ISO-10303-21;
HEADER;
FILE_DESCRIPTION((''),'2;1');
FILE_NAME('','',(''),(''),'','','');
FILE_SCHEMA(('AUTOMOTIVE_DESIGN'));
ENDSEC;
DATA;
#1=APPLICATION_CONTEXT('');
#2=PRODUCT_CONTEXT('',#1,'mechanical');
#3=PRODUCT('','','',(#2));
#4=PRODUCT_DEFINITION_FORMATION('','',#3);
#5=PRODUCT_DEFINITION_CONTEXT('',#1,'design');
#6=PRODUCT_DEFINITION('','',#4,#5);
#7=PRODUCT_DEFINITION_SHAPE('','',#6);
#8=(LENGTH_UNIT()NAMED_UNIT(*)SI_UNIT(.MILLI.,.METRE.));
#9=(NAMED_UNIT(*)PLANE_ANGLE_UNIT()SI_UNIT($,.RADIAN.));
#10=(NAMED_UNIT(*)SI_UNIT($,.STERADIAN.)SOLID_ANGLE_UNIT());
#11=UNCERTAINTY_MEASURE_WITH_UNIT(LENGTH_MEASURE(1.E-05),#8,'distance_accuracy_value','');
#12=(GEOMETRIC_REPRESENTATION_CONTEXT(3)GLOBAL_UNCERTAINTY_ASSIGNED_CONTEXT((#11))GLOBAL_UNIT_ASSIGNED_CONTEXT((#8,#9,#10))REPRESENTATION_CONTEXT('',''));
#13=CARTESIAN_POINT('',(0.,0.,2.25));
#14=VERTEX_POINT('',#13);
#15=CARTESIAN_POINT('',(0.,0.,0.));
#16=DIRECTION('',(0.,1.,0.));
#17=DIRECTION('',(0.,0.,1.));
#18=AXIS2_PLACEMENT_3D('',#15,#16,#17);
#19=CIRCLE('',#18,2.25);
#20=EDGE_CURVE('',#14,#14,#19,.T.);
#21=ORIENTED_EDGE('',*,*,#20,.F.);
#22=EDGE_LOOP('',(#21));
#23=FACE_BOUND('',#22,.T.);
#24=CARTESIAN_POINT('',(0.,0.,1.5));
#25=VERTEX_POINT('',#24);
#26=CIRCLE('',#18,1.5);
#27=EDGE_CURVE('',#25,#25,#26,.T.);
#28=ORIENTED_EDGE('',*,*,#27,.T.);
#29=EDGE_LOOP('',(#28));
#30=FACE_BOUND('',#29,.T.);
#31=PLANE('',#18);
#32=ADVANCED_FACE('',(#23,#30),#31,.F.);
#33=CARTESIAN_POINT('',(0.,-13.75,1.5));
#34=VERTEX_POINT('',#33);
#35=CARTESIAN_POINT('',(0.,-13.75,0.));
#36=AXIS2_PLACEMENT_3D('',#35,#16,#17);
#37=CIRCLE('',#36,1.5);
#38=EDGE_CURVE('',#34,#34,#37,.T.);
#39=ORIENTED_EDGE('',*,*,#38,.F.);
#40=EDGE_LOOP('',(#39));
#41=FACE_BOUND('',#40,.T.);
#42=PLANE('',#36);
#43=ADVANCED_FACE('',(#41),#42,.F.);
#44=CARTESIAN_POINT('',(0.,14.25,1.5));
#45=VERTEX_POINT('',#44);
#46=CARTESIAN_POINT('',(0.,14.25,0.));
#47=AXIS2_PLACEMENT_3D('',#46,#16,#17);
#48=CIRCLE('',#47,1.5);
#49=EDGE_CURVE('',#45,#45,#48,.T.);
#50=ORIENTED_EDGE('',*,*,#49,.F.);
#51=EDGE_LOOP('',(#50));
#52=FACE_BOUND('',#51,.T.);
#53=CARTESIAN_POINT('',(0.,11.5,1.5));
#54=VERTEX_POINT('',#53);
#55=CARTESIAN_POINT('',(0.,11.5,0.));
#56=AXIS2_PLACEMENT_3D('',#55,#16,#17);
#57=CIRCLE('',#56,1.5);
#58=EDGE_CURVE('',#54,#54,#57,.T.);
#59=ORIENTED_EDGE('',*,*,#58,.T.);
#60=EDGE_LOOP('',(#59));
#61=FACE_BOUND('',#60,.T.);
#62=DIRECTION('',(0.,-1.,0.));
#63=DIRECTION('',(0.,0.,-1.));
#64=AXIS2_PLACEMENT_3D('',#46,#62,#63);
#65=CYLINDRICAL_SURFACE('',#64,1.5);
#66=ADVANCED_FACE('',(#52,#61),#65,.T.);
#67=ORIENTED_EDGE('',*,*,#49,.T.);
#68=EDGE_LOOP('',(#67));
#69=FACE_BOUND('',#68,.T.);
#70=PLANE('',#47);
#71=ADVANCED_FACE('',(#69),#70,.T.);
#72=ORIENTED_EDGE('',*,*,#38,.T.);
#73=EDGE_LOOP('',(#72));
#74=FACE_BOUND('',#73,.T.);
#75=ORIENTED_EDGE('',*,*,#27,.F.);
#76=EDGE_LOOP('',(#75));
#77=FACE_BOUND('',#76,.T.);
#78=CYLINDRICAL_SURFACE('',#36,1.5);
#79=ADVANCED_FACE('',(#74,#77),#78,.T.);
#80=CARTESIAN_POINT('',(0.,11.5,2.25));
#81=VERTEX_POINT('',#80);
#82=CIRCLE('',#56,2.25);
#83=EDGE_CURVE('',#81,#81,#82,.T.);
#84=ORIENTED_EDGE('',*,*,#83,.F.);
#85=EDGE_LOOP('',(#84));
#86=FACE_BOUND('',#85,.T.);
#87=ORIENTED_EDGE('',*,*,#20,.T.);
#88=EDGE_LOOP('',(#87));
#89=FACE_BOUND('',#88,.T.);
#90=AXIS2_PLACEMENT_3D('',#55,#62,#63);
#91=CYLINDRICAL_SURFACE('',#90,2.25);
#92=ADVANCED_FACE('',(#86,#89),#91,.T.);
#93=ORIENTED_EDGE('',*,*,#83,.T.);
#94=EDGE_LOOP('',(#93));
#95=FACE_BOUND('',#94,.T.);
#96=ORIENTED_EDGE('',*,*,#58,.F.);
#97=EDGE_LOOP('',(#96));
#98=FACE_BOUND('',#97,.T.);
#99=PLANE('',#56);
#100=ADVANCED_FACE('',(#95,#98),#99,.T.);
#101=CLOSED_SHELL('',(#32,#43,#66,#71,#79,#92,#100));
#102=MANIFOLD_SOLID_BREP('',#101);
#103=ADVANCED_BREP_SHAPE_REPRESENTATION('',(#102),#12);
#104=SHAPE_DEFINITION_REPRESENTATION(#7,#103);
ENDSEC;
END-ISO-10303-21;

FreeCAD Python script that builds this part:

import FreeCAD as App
import Part
import Sketcher

V = App.Vector
Q = App.Units.Quantity

doc = App.newDocument("Part")
body = doc.addObject("PartDesign::Body", "Body")

sketch1 = body.newObject("Sketcher::SketchObject", "Sketch")
sketch1.AttachmentSupport = (doc.getObject("XZ_Plane"), [""])
sketch1.MapMode = "FlatFace"
sketch1.addGeometry(Part.Circle(V(0, 0, 0), V(0, 0, 1), 1.5), False)
sketch1.addConstraint([
    Sketcher.Constraint("Coincident", 0, 3, -1, 1),
    Sketcher.Constraint("Diameter", 0, Q("3 mm")),
])
pad1 = body.newObject("PartDesign::Pad", "Pad")
pad1.Profile = sketch1
pad1.Length = 13.75

sketch2 = body.newObject("Sketcher::SketchObject", "Sketch001")
sketch2.AttachmentSupport = (doc.getObject("XZ_Plane"), [""])
sketch2.MapMode = "FlatFace"
sketch2.addGeometry(Part.Circle(V(0, 0, 0), V(0, 0, 1), 2.2), False)
sketch2.addConstraint([
    Sketcher.Constraint("Coincident", 0, 3, -1, 1),
    Sketcher.Constraint("Diameter", 0, Q("4.5 mm")),
])
pad2 = body.newObject("PartDesign::Pad", "Pad001")
pad2.Profile = sketch2
pad2.Length = 11.5
pad2.Reversed = True

sketch3 = body.newObject("Sketcher::SketchObject", "Sketch002")
sketch3.AttachmentSupport = (doc.getObject("XZ_Plane"), [""])
sketch3.MapMode = "FlatFace"
sketch3.AttachmentOffset = App.Placement(V(0, 0, -14.25), App.Rotation())
sketch3.addGeometry(Part.Circle(V(0, 0, 0), V(0, 0, 1), 1.5), False)
sketch3.addConstraint([
    Sketcher.Constraint("Coincident", 0, 3, -1, 1),
    Sketcher.Constraint("Diameter", 0, Q("3 mm")),
])
pad3 = body.newObject("PartDesign::Pad", "Pad002")
pad3.Profile = sketch3
pad3.Length = 2.75

doc.recompute()
